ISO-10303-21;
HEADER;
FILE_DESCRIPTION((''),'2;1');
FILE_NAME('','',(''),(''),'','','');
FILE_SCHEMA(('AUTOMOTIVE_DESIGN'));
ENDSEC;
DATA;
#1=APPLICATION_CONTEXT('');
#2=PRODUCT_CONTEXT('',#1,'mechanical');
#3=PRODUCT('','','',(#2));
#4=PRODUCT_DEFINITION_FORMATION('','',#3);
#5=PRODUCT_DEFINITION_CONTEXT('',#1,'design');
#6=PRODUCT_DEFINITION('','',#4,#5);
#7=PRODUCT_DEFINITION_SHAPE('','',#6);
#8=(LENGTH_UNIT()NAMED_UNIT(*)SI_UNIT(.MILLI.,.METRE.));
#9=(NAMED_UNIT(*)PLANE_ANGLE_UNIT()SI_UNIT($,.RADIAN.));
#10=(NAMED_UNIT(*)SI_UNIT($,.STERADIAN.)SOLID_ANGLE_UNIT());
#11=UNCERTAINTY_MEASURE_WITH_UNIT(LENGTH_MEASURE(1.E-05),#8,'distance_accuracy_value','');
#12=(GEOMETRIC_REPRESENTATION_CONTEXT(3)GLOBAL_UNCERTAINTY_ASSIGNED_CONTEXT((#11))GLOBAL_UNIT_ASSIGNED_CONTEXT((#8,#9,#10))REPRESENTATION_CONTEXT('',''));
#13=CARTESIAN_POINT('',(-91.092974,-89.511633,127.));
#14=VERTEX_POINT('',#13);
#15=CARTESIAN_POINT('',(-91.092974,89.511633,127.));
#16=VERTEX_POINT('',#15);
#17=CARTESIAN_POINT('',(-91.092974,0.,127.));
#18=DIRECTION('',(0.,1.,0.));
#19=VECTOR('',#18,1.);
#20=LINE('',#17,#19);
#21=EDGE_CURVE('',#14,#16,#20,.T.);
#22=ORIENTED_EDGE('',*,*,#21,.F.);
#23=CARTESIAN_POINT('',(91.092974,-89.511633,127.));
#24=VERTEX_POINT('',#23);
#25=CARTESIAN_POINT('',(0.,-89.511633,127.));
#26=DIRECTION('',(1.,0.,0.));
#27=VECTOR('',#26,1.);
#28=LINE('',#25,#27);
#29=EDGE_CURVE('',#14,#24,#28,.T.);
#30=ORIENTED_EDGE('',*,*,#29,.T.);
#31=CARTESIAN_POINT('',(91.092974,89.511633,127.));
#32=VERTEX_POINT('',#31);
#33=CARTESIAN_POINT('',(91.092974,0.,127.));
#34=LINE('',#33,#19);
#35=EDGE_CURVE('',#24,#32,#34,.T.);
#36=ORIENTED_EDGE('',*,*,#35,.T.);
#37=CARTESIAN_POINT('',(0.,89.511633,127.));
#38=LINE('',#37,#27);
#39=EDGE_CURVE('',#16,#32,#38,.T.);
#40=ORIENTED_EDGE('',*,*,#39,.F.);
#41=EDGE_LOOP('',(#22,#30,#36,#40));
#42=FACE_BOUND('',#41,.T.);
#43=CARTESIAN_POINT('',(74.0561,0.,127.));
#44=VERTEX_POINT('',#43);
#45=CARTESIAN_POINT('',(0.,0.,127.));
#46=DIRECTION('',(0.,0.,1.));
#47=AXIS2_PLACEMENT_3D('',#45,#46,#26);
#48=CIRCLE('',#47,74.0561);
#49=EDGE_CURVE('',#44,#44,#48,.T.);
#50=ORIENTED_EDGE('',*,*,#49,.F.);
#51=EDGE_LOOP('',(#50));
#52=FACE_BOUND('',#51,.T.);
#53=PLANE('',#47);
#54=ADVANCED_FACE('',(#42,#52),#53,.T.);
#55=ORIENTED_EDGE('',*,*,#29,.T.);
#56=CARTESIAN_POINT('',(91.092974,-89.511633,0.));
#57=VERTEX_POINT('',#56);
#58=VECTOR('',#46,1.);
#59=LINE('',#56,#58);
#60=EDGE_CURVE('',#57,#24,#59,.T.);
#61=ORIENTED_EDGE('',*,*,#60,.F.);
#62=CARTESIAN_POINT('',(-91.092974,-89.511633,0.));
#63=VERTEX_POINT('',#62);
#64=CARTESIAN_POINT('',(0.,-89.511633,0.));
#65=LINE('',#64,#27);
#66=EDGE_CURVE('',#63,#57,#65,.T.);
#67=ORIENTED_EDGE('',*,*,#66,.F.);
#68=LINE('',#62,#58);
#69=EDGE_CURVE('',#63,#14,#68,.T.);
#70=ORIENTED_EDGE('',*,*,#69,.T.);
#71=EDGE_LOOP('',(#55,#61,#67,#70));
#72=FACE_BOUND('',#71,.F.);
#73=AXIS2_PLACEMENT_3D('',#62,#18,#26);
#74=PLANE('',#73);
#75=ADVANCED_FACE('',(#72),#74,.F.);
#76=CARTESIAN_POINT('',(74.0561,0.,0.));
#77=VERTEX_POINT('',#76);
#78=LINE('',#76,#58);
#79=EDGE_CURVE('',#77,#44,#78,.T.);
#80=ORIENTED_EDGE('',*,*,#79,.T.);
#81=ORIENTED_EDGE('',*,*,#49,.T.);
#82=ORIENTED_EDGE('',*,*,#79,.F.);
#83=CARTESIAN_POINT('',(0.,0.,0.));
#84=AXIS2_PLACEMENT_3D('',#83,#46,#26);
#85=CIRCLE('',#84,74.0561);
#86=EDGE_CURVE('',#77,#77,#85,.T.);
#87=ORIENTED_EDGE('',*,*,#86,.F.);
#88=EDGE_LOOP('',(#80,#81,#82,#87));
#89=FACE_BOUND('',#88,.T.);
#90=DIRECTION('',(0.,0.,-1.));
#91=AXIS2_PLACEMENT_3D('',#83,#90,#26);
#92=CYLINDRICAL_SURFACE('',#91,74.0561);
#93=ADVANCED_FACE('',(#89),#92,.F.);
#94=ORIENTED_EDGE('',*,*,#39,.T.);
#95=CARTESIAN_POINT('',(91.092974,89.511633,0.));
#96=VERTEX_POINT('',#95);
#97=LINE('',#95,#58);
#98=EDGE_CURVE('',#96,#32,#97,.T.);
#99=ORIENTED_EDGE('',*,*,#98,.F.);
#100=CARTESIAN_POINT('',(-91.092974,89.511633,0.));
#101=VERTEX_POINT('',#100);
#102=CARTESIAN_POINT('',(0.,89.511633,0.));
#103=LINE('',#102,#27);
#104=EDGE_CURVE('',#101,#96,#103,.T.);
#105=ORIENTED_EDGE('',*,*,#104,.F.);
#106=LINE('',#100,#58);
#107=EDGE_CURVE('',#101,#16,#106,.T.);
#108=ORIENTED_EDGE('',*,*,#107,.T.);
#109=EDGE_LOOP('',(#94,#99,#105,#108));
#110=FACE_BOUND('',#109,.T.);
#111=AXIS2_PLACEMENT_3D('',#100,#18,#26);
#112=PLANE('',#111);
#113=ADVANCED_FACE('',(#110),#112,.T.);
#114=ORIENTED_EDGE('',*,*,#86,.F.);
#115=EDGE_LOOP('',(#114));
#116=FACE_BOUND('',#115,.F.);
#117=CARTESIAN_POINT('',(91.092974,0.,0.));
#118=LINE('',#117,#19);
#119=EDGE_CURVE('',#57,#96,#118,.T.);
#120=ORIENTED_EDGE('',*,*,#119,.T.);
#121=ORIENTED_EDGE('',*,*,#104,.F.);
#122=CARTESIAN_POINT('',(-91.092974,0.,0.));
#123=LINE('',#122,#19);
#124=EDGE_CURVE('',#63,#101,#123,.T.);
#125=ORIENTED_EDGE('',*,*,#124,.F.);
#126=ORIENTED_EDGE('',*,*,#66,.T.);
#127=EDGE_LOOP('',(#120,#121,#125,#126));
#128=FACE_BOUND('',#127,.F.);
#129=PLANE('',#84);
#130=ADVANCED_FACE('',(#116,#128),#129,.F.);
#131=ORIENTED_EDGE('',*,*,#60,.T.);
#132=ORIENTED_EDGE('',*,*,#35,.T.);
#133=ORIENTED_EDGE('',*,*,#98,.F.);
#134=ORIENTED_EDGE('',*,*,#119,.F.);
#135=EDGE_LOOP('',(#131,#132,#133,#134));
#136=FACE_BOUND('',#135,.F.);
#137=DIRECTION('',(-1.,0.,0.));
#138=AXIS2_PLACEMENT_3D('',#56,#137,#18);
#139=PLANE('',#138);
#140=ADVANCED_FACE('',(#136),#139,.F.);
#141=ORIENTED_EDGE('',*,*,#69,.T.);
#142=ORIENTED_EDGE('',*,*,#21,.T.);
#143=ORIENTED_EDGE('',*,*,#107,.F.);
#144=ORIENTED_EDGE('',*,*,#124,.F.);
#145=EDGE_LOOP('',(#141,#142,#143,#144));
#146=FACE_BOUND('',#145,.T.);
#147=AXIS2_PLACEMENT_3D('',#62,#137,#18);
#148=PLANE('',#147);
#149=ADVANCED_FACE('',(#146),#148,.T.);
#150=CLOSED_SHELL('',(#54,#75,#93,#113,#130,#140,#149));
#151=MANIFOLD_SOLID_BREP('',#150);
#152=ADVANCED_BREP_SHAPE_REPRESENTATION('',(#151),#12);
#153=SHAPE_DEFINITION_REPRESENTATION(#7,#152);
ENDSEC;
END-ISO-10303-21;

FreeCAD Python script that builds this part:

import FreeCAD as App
import Part
import Sketcher
from FreeCAD import Vector
Q = App.Units.Quantity

doc = App.newDocument("Part")
params = doc.addObject("Spreadsheet::Sheet", "Params")
for row, (alias, value) in enumerate([
    ("pad1_length", "5 in"),
], start=1):
    params.set(f"A{row}", alias)
    params.set(f"B{row}", "=" + value)
    params.setAlias(f"B{row}", alias)

body = doc.addObject("PartDesign::Body", "Body")

# Sketch on XY plane
sketch1 = doc.addObject("Sketcher::SketchObject", "Sketch")
body.addObject(sketch1)
sketch1.AttachmentSupport = (doc.XY_Plane, [""])
sketch1.MapMode = "FlatFace"
sketch1.addGeometry([
    Part.LineSegment(Vector(-91, 90, 0), Vector(-91, -90, 0)),  # 0
    Part.LineSegment(Vector(-91, -90, 0), Vector(91, -90, 0)),  # 1
    Part.LineSegment(Vector(91, -90, 0), Vector(91, 90, 0)),  # 2
    Part.LineSegment(Vector(91, 90, 0), Vector(-91, 90, 0)),  # 3
    Part.Circle(Vector(0, 0, 0), Vector(0, 0, 1), 74),  # 4
], False)
sketch1.addConstraint([
    Sketcher.Constraint("Coincident", 0, 2, 1, 1),
    Sketcher.Constraint("Coincident", 1, 2, 2, 1),
    Sketcher.Constraint("Coincident", 2, 2, 3, 1),
    Sketcher.Constraint("Coincident", 3, 2, 0, 1),
    Sketcher.Constraint("Vertical", 0),
    Sketcher.Constraint("Horizontal", 1),
    Sketcher.Constraint("Vertical", 2),
    Sketcher.Constraint("Horizontal", 3),
    Sketcher.Constraint("Coincident", 4, 3, -1, 1),
    Sketcher.Constraint("Symmetric", 0, 2, 2, 2, -1, 1),
    Sketcher.Constraint("Diameter", 4, Q("148.1122 mm")),
    Sketcher.Constraint("DistanceX", 1, 1, 1, 2, Q("182.185948 mm")),
    Sketcher.Constraint("DistanceY", 0, 2, 0, 1, Q("179.023266 mm")),
])
pad1 = doc.addObject("PartDesign::Pad", "Pad")
body.addObject(pad1)
pad1.Profile = sketch1
pad1.setExpression("Length", "Params.pad1_length")

doc.recompute()
